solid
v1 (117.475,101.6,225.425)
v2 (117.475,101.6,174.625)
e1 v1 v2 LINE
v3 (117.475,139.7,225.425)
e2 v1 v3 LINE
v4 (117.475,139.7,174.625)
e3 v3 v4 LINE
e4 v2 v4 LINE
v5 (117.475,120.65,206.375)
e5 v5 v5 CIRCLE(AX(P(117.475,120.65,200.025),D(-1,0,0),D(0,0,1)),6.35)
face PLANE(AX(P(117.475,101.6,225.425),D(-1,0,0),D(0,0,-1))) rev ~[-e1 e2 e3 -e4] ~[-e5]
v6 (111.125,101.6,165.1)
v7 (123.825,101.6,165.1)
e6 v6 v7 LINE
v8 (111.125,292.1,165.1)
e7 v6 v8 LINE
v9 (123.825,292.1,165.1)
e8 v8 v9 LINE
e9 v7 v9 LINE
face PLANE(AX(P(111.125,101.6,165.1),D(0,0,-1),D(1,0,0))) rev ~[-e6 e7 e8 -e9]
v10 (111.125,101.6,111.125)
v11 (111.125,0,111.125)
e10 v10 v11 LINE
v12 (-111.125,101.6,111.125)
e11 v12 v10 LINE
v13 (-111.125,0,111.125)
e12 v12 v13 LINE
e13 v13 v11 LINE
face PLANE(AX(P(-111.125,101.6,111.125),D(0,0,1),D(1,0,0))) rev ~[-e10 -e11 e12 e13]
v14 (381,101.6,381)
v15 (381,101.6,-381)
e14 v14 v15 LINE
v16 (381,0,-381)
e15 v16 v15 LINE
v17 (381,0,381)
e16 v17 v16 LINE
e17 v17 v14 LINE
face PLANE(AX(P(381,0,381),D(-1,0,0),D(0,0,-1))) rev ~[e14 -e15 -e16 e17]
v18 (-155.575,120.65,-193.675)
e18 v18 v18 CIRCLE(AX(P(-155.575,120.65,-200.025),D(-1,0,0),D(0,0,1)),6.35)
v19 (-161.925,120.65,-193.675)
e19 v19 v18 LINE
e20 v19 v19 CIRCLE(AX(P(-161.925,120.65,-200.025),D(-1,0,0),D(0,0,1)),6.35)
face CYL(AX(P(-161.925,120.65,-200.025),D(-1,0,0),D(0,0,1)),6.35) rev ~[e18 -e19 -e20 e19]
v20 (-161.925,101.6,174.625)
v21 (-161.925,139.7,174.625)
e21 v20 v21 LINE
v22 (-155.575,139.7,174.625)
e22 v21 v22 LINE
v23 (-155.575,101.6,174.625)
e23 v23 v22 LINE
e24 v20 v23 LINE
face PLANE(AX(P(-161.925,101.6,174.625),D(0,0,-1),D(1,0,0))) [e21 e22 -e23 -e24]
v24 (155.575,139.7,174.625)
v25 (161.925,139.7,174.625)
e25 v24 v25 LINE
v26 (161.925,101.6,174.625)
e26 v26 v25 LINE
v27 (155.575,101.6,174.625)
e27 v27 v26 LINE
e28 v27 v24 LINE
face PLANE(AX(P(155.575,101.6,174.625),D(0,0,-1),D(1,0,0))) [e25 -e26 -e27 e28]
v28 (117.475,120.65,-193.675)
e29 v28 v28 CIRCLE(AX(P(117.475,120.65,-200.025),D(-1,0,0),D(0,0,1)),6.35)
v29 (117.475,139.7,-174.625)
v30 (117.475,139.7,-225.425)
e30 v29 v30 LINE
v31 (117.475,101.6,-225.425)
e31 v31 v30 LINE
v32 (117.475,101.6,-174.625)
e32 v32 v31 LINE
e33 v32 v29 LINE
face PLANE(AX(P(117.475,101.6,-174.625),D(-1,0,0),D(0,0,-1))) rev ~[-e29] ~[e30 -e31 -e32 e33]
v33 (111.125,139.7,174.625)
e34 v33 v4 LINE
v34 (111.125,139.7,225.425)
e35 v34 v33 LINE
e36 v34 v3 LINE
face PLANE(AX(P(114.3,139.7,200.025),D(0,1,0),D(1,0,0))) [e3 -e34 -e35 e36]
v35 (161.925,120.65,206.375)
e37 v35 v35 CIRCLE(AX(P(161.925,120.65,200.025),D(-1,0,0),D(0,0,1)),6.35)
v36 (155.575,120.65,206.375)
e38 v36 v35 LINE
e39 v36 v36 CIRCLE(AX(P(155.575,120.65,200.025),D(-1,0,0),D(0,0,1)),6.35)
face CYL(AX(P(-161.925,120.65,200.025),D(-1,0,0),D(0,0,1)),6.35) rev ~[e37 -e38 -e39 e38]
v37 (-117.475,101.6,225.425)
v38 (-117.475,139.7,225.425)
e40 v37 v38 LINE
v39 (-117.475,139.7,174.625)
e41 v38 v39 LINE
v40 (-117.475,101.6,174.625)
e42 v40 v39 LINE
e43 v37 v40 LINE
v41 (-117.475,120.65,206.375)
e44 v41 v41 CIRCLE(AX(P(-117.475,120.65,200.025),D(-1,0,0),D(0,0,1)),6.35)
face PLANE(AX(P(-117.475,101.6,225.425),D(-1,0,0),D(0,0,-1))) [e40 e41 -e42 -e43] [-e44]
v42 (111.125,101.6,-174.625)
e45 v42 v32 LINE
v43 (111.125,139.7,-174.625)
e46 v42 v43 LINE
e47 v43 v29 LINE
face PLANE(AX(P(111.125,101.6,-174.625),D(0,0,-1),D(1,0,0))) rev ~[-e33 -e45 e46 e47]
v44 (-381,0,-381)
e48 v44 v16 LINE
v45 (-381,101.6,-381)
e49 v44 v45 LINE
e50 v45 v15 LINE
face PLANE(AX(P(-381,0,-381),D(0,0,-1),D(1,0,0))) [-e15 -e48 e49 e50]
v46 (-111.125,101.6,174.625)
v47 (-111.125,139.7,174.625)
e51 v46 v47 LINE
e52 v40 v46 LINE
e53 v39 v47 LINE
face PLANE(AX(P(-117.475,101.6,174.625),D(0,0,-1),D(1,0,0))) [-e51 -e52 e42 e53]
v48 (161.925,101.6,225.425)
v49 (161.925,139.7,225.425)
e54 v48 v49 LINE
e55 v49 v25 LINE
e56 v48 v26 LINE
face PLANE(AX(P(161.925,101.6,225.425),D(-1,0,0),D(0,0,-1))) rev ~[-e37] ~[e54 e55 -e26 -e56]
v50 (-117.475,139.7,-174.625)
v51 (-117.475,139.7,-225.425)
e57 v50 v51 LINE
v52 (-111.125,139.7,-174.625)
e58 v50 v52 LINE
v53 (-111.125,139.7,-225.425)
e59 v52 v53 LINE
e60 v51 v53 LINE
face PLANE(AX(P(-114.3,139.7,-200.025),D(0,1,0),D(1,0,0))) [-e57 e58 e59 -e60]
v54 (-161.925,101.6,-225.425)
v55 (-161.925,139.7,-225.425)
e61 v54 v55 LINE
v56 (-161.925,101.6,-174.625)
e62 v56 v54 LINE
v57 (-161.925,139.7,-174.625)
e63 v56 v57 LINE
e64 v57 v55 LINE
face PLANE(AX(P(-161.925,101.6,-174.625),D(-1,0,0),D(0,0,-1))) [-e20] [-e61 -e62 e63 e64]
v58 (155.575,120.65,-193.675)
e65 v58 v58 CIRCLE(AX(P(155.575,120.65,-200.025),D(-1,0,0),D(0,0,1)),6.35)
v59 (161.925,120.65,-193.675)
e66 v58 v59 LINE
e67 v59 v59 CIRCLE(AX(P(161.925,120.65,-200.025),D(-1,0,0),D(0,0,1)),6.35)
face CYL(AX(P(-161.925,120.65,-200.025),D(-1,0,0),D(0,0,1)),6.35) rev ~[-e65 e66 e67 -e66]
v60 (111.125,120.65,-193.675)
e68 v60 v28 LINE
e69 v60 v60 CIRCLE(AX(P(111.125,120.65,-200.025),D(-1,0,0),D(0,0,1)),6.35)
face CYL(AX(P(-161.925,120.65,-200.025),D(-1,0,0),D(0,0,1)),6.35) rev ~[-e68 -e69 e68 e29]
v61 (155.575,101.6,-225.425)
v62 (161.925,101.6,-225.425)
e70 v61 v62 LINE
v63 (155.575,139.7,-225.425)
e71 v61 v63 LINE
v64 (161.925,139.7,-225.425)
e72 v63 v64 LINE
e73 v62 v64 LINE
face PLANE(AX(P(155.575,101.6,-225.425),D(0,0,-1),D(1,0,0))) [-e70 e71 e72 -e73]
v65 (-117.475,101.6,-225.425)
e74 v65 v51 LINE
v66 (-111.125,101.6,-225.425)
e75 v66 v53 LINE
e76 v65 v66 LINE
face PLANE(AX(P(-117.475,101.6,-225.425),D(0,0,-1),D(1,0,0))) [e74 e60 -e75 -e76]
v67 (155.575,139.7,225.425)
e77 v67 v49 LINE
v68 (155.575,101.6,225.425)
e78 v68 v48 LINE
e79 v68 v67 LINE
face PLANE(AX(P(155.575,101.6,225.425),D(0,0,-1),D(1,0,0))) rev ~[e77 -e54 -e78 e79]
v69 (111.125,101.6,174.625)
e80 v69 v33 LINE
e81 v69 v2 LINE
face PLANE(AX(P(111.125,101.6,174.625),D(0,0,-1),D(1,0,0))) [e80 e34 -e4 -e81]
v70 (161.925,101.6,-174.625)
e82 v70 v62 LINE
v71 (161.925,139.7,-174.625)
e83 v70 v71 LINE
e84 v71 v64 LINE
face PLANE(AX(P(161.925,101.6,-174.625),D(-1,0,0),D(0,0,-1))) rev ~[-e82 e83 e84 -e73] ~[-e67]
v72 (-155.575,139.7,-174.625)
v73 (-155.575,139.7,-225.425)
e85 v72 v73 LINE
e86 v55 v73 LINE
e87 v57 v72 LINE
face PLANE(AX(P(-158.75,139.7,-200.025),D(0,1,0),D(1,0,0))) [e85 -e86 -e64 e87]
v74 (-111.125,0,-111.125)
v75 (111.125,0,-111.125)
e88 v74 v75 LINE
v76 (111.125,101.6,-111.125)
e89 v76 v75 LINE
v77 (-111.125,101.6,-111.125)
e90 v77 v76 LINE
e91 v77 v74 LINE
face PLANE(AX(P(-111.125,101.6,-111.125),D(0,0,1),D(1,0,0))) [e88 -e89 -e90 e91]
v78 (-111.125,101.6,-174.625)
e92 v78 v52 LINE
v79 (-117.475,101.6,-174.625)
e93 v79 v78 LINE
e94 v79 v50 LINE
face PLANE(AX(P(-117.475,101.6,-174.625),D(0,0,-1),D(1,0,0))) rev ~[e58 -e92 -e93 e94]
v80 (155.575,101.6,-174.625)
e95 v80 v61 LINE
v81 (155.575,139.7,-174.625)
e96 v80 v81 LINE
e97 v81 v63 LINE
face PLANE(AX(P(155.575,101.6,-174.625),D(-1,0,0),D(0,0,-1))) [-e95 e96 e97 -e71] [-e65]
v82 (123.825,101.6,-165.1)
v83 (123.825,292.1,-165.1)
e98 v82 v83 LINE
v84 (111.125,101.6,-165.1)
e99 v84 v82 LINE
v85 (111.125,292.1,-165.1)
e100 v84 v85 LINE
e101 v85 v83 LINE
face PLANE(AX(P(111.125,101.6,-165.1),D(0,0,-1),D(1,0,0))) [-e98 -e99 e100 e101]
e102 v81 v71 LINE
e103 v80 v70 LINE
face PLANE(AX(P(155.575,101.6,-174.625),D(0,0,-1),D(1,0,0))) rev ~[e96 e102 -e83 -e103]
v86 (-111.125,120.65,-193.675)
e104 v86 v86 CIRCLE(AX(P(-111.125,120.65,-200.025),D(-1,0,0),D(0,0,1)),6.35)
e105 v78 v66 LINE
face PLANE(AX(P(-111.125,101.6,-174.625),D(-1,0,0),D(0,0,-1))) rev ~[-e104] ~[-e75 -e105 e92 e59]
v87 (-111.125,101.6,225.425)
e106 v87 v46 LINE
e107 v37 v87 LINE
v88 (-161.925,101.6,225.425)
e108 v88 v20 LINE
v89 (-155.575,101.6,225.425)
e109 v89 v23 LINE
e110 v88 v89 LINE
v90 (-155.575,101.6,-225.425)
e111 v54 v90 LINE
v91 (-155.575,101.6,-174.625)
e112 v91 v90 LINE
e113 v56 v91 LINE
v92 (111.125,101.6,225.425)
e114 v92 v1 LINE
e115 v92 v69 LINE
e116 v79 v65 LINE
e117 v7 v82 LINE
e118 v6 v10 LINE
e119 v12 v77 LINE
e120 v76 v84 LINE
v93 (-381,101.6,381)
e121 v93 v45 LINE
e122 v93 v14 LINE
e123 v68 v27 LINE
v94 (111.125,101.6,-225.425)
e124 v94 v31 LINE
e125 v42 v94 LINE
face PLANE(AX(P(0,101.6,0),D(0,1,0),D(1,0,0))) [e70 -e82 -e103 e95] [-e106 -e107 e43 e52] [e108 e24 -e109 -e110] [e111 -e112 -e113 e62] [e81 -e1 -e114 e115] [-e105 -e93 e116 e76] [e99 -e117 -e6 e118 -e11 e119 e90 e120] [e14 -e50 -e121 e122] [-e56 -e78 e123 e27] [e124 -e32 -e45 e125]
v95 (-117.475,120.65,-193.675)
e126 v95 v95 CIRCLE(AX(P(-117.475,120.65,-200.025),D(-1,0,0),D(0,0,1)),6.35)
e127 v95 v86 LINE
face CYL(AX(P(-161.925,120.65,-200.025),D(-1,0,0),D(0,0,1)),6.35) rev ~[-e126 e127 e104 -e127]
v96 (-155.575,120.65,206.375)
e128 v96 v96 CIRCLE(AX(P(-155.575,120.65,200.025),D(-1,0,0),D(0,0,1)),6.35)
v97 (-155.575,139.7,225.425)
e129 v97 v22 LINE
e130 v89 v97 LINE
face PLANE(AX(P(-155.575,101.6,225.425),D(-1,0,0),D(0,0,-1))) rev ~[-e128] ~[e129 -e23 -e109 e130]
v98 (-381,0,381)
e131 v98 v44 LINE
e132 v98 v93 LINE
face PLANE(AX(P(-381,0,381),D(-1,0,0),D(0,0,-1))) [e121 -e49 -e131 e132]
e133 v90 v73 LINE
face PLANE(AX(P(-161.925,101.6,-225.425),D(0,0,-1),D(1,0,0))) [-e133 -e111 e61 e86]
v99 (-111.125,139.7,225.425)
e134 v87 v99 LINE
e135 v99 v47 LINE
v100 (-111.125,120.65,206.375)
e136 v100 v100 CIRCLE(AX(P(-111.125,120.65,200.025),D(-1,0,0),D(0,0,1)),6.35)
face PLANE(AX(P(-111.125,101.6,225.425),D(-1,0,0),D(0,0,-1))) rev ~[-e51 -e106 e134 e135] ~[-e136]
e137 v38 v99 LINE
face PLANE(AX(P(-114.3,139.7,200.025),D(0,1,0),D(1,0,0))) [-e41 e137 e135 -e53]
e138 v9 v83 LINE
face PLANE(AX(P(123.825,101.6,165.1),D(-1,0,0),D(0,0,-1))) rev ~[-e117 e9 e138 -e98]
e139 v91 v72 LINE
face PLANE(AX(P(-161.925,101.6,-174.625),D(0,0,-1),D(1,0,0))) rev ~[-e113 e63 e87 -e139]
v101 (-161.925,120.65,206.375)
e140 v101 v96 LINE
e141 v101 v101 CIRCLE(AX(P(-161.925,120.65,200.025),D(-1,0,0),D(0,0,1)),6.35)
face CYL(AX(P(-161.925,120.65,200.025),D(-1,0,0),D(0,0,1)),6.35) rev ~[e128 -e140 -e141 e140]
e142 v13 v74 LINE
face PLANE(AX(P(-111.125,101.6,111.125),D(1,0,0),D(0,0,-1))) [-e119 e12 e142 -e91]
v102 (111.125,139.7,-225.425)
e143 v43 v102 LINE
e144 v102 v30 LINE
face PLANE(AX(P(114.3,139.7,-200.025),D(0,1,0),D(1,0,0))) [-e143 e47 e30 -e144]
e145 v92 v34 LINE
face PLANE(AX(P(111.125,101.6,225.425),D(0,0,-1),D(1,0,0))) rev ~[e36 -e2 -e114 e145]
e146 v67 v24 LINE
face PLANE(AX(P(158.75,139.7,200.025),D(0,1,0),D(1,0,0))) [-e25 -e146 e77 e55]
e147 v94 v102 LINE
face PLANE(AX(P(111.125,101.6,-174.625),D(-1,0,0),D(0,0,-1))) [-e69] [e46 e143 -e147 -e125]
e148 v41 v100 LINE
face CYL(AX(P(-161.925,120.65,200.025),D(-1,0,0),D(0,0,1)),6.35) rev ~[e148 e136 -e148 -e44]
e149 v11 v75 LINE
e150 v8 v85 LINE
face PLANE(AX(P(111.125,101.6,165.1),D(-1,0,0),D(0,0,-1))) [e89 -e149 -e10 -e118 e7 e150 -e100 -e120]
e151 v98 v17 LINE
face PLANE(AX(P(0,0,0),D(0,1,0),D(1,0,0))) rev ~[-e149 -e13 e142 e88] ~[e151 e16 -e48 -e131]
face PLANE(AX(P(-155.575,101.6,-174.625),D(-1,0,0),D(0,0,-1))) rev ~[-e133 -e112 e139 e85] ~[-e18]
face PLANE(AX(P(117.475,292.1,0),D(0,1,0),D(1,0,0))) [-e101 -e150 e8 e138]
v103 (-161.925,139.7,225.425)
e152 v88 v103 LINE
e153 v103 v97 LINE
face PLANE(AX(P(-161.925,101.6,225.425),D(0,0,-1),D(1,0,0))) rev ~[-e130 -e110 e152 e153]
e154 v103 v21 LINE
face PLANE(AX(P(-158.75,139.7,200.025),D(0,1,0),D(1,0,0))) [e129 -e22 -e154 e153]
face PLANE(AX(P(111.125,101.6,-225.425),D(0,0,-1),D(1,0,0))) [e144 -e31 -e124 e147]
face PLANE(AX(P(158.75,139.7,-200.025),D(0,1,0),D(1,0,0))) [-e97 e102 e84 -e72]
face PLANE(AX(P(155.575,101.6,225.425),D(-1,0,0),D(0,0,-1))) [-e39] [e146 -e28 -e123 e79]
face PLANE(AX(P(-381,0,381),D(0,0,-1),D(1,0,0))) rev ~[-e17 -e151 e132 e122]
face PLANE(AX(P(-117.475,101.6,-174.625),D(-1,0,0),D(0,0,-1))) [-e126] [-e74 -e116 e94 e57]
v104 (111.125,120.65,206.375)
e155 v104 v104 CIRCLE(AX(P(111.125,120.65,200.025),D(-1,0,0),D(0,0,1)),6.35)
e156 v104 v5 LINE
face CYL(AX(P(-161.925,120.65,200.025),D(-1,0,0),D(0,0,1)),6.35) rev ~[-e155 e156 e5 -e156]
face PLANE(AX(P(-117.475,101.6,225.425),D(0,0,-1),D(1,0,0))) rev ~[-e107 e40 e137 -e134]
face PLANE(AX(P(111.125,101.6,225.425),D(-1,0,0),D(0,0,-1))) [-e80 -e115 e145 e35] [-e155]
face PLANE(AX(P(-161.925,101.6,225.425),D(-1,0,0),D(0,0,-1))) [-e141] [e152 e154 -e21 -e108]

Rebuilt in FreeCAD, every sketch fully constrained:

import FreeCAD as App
import Part
import Sketcher
from FreeCAD import Vector
Q = App.Units.Quantity


def add_polygon(sketch, points):
    """Adds a closed chain of lines whose ends are joined by coincident constraints."""
    first, n = sketch.GeometryCount, len(points)
    for a, b in zip(points, points[1:] + points[:1]):
        sketch.addGeometry(Part.LineSegment(App.Vector(*a, 0), App.Vector(*b, 0)), False)
    for i in range(n):
        sketch.addConstraint(Sketcher.Constraint("Coincident", first + i, 2, first + (i + 1) % n, 1))

doc = App.newDocument("Part")
body = doc.addObject("PartDesign::Body", "Body")

# Sketch on XZ plane
sketch1 = doc.addObject("Sketcher::SketchObject", "Sketch")
body.addObject(sketch1)
sketch1.AttachmentSupport = (doc.XZ_Plane, [""])
sketch1.MapMode = "FlatFace"
add_polygon(sketch1, [(-381, -381), (-381, 381), (381, 381), (381, -381)])  # lines 0-3
sketch1.addConstraint(Sketcher.Constraint("Vertical", 0))
sketch1.addConstraint(Sketcher.Constraint("Horizontal", 1))
sketch1.addConstraint(Sketcher.Constraint("Vertical", 2))
sketch1.addConstraint(Sketcher.Constraint("Horizontal", 3))
sketch1.addConstraint(Sketcher.Constraint("Symmetric", 0, 2, 2, 2, -1, 1))
sketch1.addConstraint(Sketcher.Constraint("Equal", 3, 0))
sketch1.addConstraint(Sketcher.Constraint("DistanceX", 1, 1, 1, 2, Q("30 in")))
pad1 = doc.addObject("PartDesign::Pad", "Pad")
body.addObject(pad1)
pad1.Profile = sketch1
pad1.Length = Q("4 in")
pad1.Reversed = True

# Sketch on XZ plane
sketch2 = doc.addObject("Sketcher::SketchObject", "Sketch001")
body.addObject(sketch2)
sketch2.AttachmentSupport = (doc.XZ_Plane, [""])
sketch2.MapMode = "FlatFace"
sketch2.AttachmentOffset = App.Placement(Vector(0, 0, -4 * 25.4), App.Rotation())
add_polygon(sketch2, [(-111, -111), (-111, 111), (111, 111), (111, -111)])  # lines 0-3
sketch2.addConstraint(Sketcher.Constraint("Vertical", 0))
sketch2.addConstraint(Sketcher.Constraint("Horizontal", 1))
sketch2.addConstraint(Sketcher.Constraint("Vertical", 2))
sketch2.addConstraint(Sketcher.Constraint("Horizontal", 3))
sketch2.addConstraint(Sketcher.Constraint("Symmetric", 0, 2, 2, 2, -1, 1))
sketch2.addConstraint(Sketcher.Constraint("Equal", 3, 0))
sketch2.addConstraint(Sketcher.Constraint("DistanceX", 1, 1, 1, 2, Q("8.75 in")))
pocket1 = doc.addObject("PartDesign::Pocket", "Pocket")
body.addObject(pocket1)
pocket1.Profile = sketch2
pocket1.Type = "ThroughAll"
pocket1.Reversed = True

# Sketch on XZ plane
sketch3 = doc.addObject("Sketcher::SketchObject", "Sketch002")
body.addObject(sketch3)
sketch3.AttachmentSupport = (doc.XZ_Plane, [""])
sketch3.MapMode = "FlatFace"
sketch3.AttachmentOffset = App.Placement(Vector(0, 0, -4 * 25.4), App.Rotation())
add_polygon(sketch3, [(111, -165), (111, 165), (124, 165), (124, -165)])  # lines 0-3
sketch3.addConstraint(Sketcher.Constraint("Vertical", 0))
sketch3.addConstraint(Sketcher.Constraint("Horizontal", 1))
sketch3.addConstraint(Sketcher.Constraint("Vertical", 2))
sketch3.addConstraint(Sketcher.Constraint("Horizontal", 3))
sketch3.addConstraint(Sketcher.Constraint("DistanceY", 0, 1, 0, 2, Q("13 in")))
sketch3.addConstraint(Sketcher.Constraint("DistanceX", 1, 1, 1, 2, Q("0.5 in")))
sketch3.addConstraint(Sketcher.Constraint("DistanceY", -1, 1, 0, 2, Q("6.5 in")))
sketch3.addConstraint(Sketcher.Constraint("DistanceX", -1, 1, 0, 2, Q("4.375 in")))
pad2 = doc.addObject("PartDesign::Pad", "Pad001")
body.addObject(pad2)
pad2.Profile = sketch3
pad2.Length = Q("7.5 in")
pad2.Reversed = True

# Sketch on XZ plane
sketch4 = doc.addObject("Sketcher::SketchObject", "Sketch003")
body.addObject(sketch4)
sketch4.AttachmentSupport = (doc.XZ_Plane, [""])
sketch4.MapMode = "FlatFace"
sketch4.AttachmentOffset = App.Placement(Vector(0, 0, -4 * 25.4), App.Rotation())
add_polygon(sketch4, [(-162, 175), (-162, 225), (-156, 225), (-156, 175)])  # lines 0-3
add_polygon(sketch4, [(-117, 175), (-117, 225), (-111, 225), (-111, 175)])  # lines 4-7
add_polygon(sketch4, [(111, 175), (111, 225), (117, 225), (117, 175)])  # lines 8-11
add_polygon(sketch4, [(156, 175), (156, 225), (162, 225), (162, 175)])  # lines 12-15
add_polygon(sketch4, [(156, -225), (156, -175), (162, -175), (162, -225)])  # lines 16-19
add_polygon(sketch4, [(111, -225), (111, -175), (117, -175), (117, -225)])  # lines 20-23
add_polygon(sketch4, [(-117, -225), (-117, -175), (-111, -175), (-111, -225)])  # lines 24-27
add_polygon(sketch4, [(-162, -225), (-162, -175), (-156, -175), (-156, -225)])  # lines 28-31
sketch4.addConstraint(Sketcher.Constraint("Vertical", 0))
sketch4.addConstraint(Sketcher.Constraint("Horizontal", 1))
sketch4.addConstraint(Sketcher.Constraint("Vertical", 2))
sketch4.addConstraint(Sketcher.Constraint("Horizontal", 3))
sketch4.addConstraint(Sketcher.Constraint("Vertical", 4))
sketch4.addConstraint(Sketcher.Constraint("Horizontal", 5))
sketch4.addConstraint(Sketcher.Constraint("Vertical", 6))
sketch4.addConstraint(Sketcher.Constraint("Horizontal", 7))
sketch4.addConstraint(Sketcher.Constraint("Vertical", 8))
sketch4.addConstraint(Sketcher.Constraint("Horizontal", 9))
sketch4.addConstraint(Sketcher.Constraint("Vertical", 10))
sketch4.addConstraint(Sketcher.Constraint("Horizontal", 11))
sketch4.addConstraint(Sketcher.Constraint("Vertical", 12))
sketch4.addConstraint(Sketcher.Constraint("Horizontal", 13))
sketch4.addConstraint(Sketcher.Constraint("Vertical", 14))
sketch4.addConstraint(Sketcher.Constraint("Horizontal", 15))
sketch4.addConstraint(Sketcher.Constraint("Vertical", 16))
sketch4.addConstraint(Sketcher.Constraint("Horizontal", 17))
sketch4.addConstraint(Sketcher.Constraint("Vertical", 18))
sketch4.addConstraint(Sketcher.Constraint("Horizontal", 19))
sketch4.addConstraint(Sketcher.Constraint("Vertical", 20))
sketch4.addConstraint(Sketcher.Constraint("Horizontal", 21))
sketch4.addConstraint(Sketcher.Constraint("Vertical", 22))
sketch4.addConstraint(Sketcher.Constraint("Horizontal", 23))
sketch4.addConstraint(Sketcher.Constraint("Vertical", 24))
sketch4.addConstraint(Sketcher.Constraint("Horizontal", 25))
sketch4.addConstraint(Sketcher.Constraint("Vertical", 26))
sketch4.addConstraint(Sketcher.Constraint("Horizontal", 27))
sketch4.addConstraint(Sketcher.Constraint("Vertical", 28))
sketch4.addConstraint(Sketcher.Constraint("Horizontal", 29))
sketch4.addConstraint(Sketcher.Constraint("Vertical", 30))
sketch4.addConstraint(Sketcher.Constraint("Horizontal", 31))
sketch4.addConstraint(Sketcher.Constraint("Symmetric", 2, 2, 16, 2, -1, 1))
sketch4.addConstraint(Sketcher.Constraint("Symmetric", 0, 2, 18, 2, -1, 1))
sketch4.addConstraint(Sketcher.Constraint("Symmetric", 6, 2, 20, 2, -1, 1))
sketch4.addConstraint(Sketcher.Constraint("Symmetric", 4, 2, 22, 2, -1, 1))
sketch4.addConstraint(Sketcher.Constraint("Symmetric", 10, 2, 24, 2, -1, 1))
sketch4.addConstraint(Sketcher.Constraint("Symmetric", 8, 2, 26, 2, -1, 1))
sketch4.addConstraint(Sketcher.Constraint("Symmetric", 14, 2, 28, 2, -1, 1))
sketch4.addConstraint(Sketcher.Constraint("Symmetric", 12, 2, 30, 2, -1, 1))
sketch4.addConstraint(Sketcher.Constraint("Symmetric", 5, 2, 8, 2, -2))
sketch4.addConstraint(Sketcher.Constraint("Symmetric", 7, 2, 10, 2, -2))
sketch4.addConstraint(Sketcher.Constraint("Symmetric", 1, 2, 12, 2, -2))
sketch4.addConstraint(Sketcher.Constraint("Symmetric", 3, 2, 14, 2, -2))
sketch4.addConstraint(Sketcher.Constraint("Horizontal", 1, 2, 4, 2))
sketch4.addConstraint(Sketcher.Constraint("Horizontal", 3, 2, 6, 2))
sketch4.addConstraint(Sketcher.Constraint("Equal", 3, 5))
sketch4.addConstraint(Sketcher.Constraint("DistanceY", 0, 1, 0, 2, Q("2 in")))
sketch4.addConstraint(Sketcher.Constraint("DistanceX", 0, 2, 5, 2, Q("2 in")))
sketch4.addConstraint(Sketcher.Constraint("DistanceX", 4, 2, 8, 2, Q("9 in")))
sketch4.addConstraint(Sketcher.Constraint("DistanceX", 1, 1, 1, 2, Q("0.25 in")))
sketch4.addConstraint(Sketcher.Constraint("DistanceY", 16, 2, 15, 2, Q("13.75 in")))
pad3 = doc.addObject("PartDesign::Pad", "Pad002")
body.addObject(pad3)
pad3.Profile = sketch4
pad3.Length = Q("1.5 in")
pad3.Reversed = True

# Sketch on YZ plane
sketch5 = doc.addObject("Sketcher::SketchObject", "Sketch004")
body.addObject(sketch5)
sketch5.AttachmentSupport = (doc.YZ_Plane, [""])
sketch5.MapMode = "FlatFace"
sketch5.AttachmentOffset = App.Placement(Vector(0, 0, -6.375 * 25.4), App.Rotation())
sketch5.addGeometry(Part.Circle(Vector(121, -200, 0), Vector(0, 0, 1), 6), False)
sketch5.addGeometry(Part.Circle(Vector(121, 200, 0), Vector(0, 0, 1), 6), False)
sketch5.addConstraint(Sketcher.Constraint("Equal", 0, 1))
sketch5.addConstraint(Sketcher.Constraint("Symmetric", 0, 3, 1, 3, -1))
sketch5.addConstraint(Sketcher.Constraint("Diameter", 0, Q("0.5 in")))
sketch5.addConstraint(Sketcher.Constraint("DistanceX", -1, 1, 0, 3, Q("4.75 in")))
sketch5.addConstraint(Sketcher.Constraint("DistanceY", 0, 3, 1, 3, Q("15.75 in")))
pocket2 = doc.addObject("PartDesign::Pocket", "Pocket001")
body.addObject(pocket2)
pocket2.Profile = sketch5
pocket2.Type = "ThroughAll"
pocket2.Reversed = True

doc.recompute()
